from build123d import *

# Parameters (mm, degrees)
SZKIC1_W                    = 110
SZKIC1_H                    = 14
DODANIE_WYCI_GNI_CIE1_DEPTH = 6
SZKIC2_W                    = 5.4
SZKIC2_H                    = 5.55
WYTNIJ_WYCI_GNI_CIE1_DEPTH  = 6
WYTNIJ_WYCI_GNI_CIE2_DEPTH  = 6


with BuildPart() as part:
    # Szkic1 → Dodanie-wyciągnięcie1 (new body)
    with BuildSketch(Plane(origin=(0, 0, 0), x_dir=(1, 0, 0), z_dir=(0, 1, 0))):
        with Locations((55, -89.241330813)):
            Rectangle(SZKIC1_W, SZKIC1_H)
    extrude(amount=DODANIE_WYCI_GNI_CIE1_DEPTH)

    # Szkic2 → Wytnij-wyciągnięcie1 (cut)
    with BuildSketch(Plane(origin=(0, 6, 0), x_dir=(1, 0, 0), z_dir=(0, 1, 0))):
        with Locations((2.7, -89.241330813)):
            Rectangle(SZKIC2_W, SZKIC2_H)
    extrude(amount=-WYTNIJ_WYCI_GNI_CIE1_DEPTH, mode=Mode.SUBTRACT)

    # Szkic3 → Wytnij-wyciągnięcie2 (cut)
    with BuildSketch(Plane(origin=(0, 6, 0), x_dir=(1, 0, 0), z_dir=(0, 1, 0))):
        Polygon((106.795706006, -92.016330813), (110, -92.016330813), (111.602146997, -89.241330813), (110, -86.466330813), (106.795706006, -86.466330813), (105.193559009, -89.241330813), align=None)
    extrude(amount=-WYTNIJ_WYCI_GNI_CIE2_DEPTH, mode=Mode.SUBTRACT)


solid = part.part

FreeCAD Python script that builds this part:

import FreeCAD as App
import Part
import Sketcher
from FreeCAD import Vector
Q = App.Units.Quantity


def add_polygon(sketch, points):
    """Adds a closed chain of lines whose ends are joined by coincident constraints."""
    first, n = sketch.GeometryCount, len(points)
    for a, b in zip(points, points[1:] + points[:1]):
        sketch.addGeometry(Part.LineSegment(App.Vector(*a, 0), App.Vector(*b, 0)), False)
    for i in range(n):
        sketch.addConstraint(Sketcher.Constraint("Coincident", first + i, 2, first + (i + 1) % n, 1))

doc = App.newDocument("Part")
body = doc.addObject("PartDesign::Body", "Body")

sketch1 = doc.addObject("Sketcher::SketchObject", "Sketch")
body.addObject(sketch1)
sketch1.AttachmentSupport = (doc.XZ_Plane, [""])
sketch1.MapMode = "FlatFace"
add_polygon(sketch1, [(0, 82), (0, 96), (110, 96), (110, 82)])
sketch1.addConstraint([
    Sketcher.Constraint("Vertical", 0),
    Sketcher.Constraint("Horizontal", 1),
    Sketcher.Constraint("Vertical", 2),
    Sketcher.Constraint("Horizontal", 3),
    Sketcher.Constraint("PointOnObject", 0, 2, -2),
    Sketcher.Constraint("DistanceX", 1, 1, 1, 2, Q("110 mm")),
    Sketcher.Constraint("DistanceY", 0, 1, 0, 2, Q("14 mm")),
    Sketcher.Constraint("DistanceY", -1, 1, 0, 2, Q("96.241331 mm")),
])
pad1 = doc.addObject("PartDesign::Pad", "Pad")
body.addObject(pad1)
pad1.Profile = sketch1
pad1.Length = 6
pad1.Reversed = True

sketch2 = doc.addObject("Sketcher::SketchObject", "Sketch001")
body.addObject(sketch2)
sketch2.AttachmentSupport = (doc.XZ_Plane, [""])
sketch2.MapMode = "FlatFace"
sketch2.AttachmentOffset = App.Placement(Vector(0, 0, -6), App.Rotation())
add_polygon(sketch2, [(0, 86), (0, 92), (5, 92), (5, 86)])
sketch2.addConstraint([
    Sketcher.Constraint("Vertical", 0),
    Sketcher.Constraint("Horizontal", 1),
    Sketcher.Constraint("Vertical", 2),
    Sketcher.Constraint("Horizontal", 3),
    Sketcher.Constraint("PointOnObject", 0, 2, -2),
    Sketcher.Constraint("DistanceX", 1, 1, 1, 2, Q("5.4 mm")),
    Sketcher.Constraint("DistanceY", 0, 1, 0, 2, Q("5.55 mm")),
    Sketcher.Constraint("DistanceY", -1, 1, 0, 2, Q("92.016331 mm")),
])
pocket1 = doc.addObject("PartDesign::Pocket", "Pocket")
body.addObject(pocket1)
pocket1.Profile = sketch2
pocket1.Length = 6
pocket1.Reversed = True

sketch3 = doc.addObject("Sketcher::SketchObject", "Sketch002")
body.addObject(sketch3)
sketch3.AttachmentSupport = (doc.XZ_Plane, [""])
sketch3.MapMode = "FlatFace"
sketch3.AttachmentOffset = App.Placement(Vector(0, 0, -6), App.Rotation())
add_polygon(sketch3, [(106.8, 92), (110, 92), (111.6, 89.2), (110, 86.5), (106.8, 86.5), (105.2, 89.2)])
sketch3.addConstraint([
    Sketcher.Constraint("Horizontal", 0),
    Sketcher.Constraint("Horizontal", 3),
    Sketcher.Constraint("Parallel", 1, 4),
    Sketcher.Constraint("Parallel", 2, 5),
    Sketcher.Constraint("Horizontal", 1, 2, 4, 2),
    Sketcher.Constraint("Vertical", 0, 2, 2, 2),
    Sketcher.Constraint("Vertical", 3, 2, 5, 2),
    Sketcher.Constraint("Angle", 1, Q("-60 deg")),
    Sketcher.Constraint("DistanceX", -1, 1, 0, 2, Q("110 mm")),
    Sketcher.Constraint("DistanceY", 2, 2, 0, 2, Q("5.55 mm")),
    Sketcher.Constraint("DistanceX", 0, 1, 0, 2, Q("3.204294 mm")),
    Sketcher.Constraint("DistanceY", -1, 1, 0, 2, Q("92.016331 mm")),
])
pocket2 = doc.addObject("PartDesign::Pocket", "Pocket001")
body.addObject(pocket2)
pocket2.Profile = sketch3
pocket2.Length = 6
pocket2.Reversed = True

doc.recompute()
